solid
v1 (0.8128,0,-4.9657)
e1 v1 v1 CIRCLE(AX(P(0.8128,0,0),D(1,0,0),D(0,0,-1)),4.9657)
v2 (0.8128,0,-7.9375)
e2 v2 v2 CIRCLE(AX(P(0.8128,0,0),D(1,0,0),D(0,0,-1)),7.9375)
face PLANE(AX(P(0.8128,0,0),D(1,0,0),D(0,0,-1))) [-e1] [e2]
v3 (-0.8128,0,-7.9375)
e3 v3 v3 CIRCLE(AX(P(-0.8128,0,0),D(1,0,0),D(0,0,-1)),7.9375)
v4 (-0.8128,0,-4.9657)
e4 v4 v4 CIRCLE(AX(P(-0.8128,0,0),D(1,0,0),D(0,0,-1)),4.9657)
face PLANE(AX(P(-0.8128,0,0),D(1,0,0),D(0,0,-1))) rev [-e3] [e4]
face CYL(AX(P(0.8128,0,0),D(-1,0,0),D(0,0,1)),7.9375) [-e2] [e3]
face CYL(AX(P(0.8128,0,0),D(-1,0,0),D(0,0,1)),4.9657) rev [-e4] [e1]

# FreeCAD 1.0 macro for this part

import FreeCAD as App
import Part
import Sketcher
Q = App.Units.Quantity

doc = App.newDocument("Part")
body = doc.addObject("PartDesign::Body", "Body")

# Sketch on YZ plane
sketch1 = body.newObject("Sketcher::SketchObject", "Sketch")
sketch1.AttachmentSupport = (doc.getObject("YZ_Plane"), [""])
sketch1.MapMode = "FlatFace"
sketch1.addGeometry([
    Part.Circle(App.Vector(0, 0, 0), App.Vector(0, 0, 1), 7.9),
    Part.Circle(App.Vector(0, 0, 0), App.Vector(0, 0, 1), 5),
], False)
sketch1.addConstraint([
    Sketcher.Constraint("Coincident", 0, 3, -1, 1),
    Sketcher.Constraint("Coincident", 1, 3, -1, 1),
    Sketcher.Constraint("Diameter", 0, Q("0.625 in")),
    Sketcher.Constraint("Diameter", 1, Q("0.391 in")),
])
pad1 = body.newObject("PartDesign::Pad", "Pad")
pad1.Profile = sketch1
pad1.Length = Q("0.064 in")
pad1.Midplane = True

doc.recompute()
